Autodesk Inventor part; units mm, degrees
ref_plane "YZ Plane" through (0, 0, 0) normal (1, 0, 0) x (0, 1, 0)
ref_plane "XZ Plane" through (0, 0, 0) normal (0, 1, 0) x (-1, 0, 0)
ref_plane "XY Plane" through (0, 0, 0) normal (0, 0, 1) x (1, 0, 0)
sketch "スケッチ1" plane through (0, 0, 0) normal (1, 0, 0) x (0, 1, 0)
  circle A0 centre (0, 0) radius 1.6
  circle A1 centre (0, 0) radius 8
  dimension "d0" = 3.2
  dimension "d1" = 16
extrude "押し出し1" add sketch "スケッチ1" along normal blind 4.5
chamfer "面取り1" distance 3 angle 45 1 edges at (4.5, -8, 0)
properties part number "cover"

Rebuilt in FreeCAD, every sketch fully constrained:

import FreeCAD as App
import Part
import Sketcher


def edges_at(feature, points):
    """Names of the edges that pass closest to the given points."""
    edges = feature.Shape.Edges
    near = lambda p: min(range(len(edges)), key=lambda i: edges[i].distToShape(Part.Vertex(*p))[0])
    return sorted({f"Edge{near(p) + 1}" for p in points})

doc = App.newDocument("Part")
body = doc.addObject("PartDesign::Body", "Body")

sketch1 = body.newObject("Sketcher::SketchObject", "Sketch")
sketch1.AttachmentSupport = (doc.getObject("YZ_Plane"), [""])
sketch1.MapMode = "FlatFace"
sketch1.addGeometry([
    Part.Circle(App.Vector(0, 0, 0), App.Vector(0, 0, 1), 8),
    Part.Circle(App.Vector(0, 0, 0), App.Vector(0, 0, 1), 1.6),
], False)
sketch1.addConstraint([
    Sketcher.Constraint("Coincident", 0, 3, -1, 1),
    Sketcher.Constraint("Coincident", 1, 3, -1, 1),
    Sketcher.Constraint("Diameter", 0, 16.0),
    Sketcher.Constraint("Diameter", 1, 3.2),
])
pad1 = body.newObject("PartDesign::Pad", "Pad")
pad1.Profile = sketch1
pad1.Length = 4.5
doc.recompute()

chamfer = body.newObject("PartDesign::Chamfer", "Chamfer")
chamfer.Base = (pad1, edges_at(pad1, [(4.5, -8, 0)]))
chamfer.Size = 3

doc.recompute()
